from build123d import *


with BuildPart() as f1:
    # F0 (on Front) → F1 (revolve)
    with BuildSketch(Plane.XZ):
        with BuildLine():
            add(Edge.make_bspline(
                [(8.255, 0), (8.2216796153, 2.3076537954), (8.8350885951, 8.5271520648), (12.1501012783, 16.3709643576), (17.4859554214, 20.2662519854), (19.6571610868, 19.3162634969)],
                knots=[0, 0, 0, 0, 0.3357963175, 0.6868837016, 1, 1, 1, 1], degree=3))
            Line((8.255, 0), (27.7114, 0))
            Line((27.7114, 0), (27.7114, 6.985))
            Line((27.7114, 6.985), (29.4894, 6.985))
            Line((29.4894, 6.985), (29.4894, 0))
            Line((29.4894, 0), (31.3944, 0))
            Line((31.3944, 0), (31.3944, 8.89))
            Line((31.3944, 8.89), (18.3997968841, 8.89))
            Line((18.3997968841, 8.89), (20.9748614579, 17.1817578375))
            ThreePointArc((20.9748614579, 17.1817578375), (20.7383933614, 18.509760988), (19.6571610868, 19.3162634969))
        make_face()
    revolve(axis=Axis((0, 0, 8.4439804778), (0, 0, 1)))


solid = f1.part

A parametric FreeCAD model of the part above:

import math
import FreeCAD as App
import Part
import Sketcher
Q = App.Units.Quantity

doc = App.newDocument("Part")
body = doc.addObject("PartDesign::Body", "Body")

sketch1 = doc.addObject("Sketcher::SketchObject", "Sketch")
body.addObject(sketch1)
sketch1.AttachmentSupport = (doc.XZ_Plane, [""])
sketch1.MapMode = "FlatFace"
sketch1.addGeometry(Part.BSplineCurve([App.Vector(8.255, 0, 0), App.Vector(8.22168, 2.307654, 0), App.Vector(8.835089, 8.527152, 0), App.Vector(12.150101, 16.370964, 0), App.Vector(17.485955, 20.266252, 0), App.Vector(19.657161, 19.316263, 0)], [4, 1, 1, 4], [0, 0.335796317, 0.686883702, 1], False, 3, [1, 1, 1, 1, 1, 1], False), False)
sketch1.addGeometry(Part.LineSegment(App.Vector(8.255, 0, 0), App.Vector(27.7114, 0, 0)), False)
sketch1.addGeometry(Part.LineSegment(App.Vector(27.7114, 0, 0), App.Vector(27.7114, 6.985, 0)), False)
sketch1.addGeometry(Part.LineSegment(App.Vector(27.7114, 6.985, 0), App.Vector(29.4894, 6.985, 0)), False)
sketch1.addGeometry(Part.LineSegment(App.Vector(29.4894, 6.985, 0), App.Vector(29.4894, 0, 0)), False)
sketch1.addGeometry(Part.LineSegment(App.Vector(29.4894, 0, 0), App.Vector(31.3944, 0, 0)), False)
sketch1.addGeometry(Part.LineSegment(App.Vector(31.3944, 0, 0), App.Vector(31.3944, 8.89, 0)), False)
sketch1.addGeometry(Part.LineSegment(App.Vector(31.3944, 8.89, 0), App.Vector(18.399797, 8.89, 0)), False)
sketch1.addGeometry(Part.LineSegment(App.Vector(18.399797, 8.89, 0), App.Vector(20.974861, 17.181758, 0)), False)
sketch1.addGeometry(Part.ArcOfCircle(Part.Circle(App.Vector(19.178863, 17.547012, 0), App.Vector(0, 0, 1), 1.832763), math.radians(-11.495528), math.radians(74.872317)), False)
sketch1.addConstraint(Sketcher.Constraint("Block", 0))
sketch1.addConstraint(Sketcher.Constraint("Coincident", 0, 1, 1, 1))
sketch1.addConstraint(Sketcher.Constraint("Coincident", 1, 2, 2, 1))
sketch1.addConstraint(Sketcher.Constraint("Coincident", 2, 2, 3, 1))
sketch1.addConstraint(Sketcher.Constraint("Coincident", 3, 2, 4, 1))
sketch1.addConstraint(Sketcher.Constraint("Coincident", 4, 2, 5, 1))
sketch1.addConstraint(Sketcher.Constraint("Coincident", 5, 2, 6, 1))
sketch1.addConstraint(Sketcher.Constraint("Coincident", 6, 2, 7, 1))
sketch1.addConstraint(Sketcher.Constraint("Coincident", 7, 2, 8, 1))
sketch1.addConstraint(Sketcher.Constraint("Coincident", 8, 2, 9, 1))
sketch1.addConstraint(Sketcher.Constraint("Coincident", 9, 2, 0, 2))
sketch1.addConstraint(Sketcher.Constraint("Horizontal", 1))
sketch1.addConstraint(Sketcher.Constraint("Vertical", 2))
sketch1.addConstraint(Sketcher.Constraint("Horizontal", 3))
sketch1.addConstraint(Sketcher.Constraint("Vertical", 4))
sketch1.addConstraint(Sketcher.Constraint("Horizontal", 5))
sketch1.addConstraint(Sketcher.Constraint("Vertical", 6))
sketch1.addConstraint(Sketcher.Constraint("Horizontal", 7))
sketch1.addConstraint(Sketcher.Constraint("PointOnObject", 4, 2, -1))
sketch1.addConstraint(Sketcher.Constraint("DistanceX", 3, 1, 3, 2, Q("0.07 in")))
sketch1.addConstraint(Sketcher.Constraint("DistanceY", 6, 1, 6, 2, Q("0.35 in")))
sketch1.addConstraint(Sketcher.Constraint("DistanceX", 1, 1, 1, 2, Q("0.766 in")))
sketch1.addConstraint(Sketcher.Constraint("DistanceX", 5, 1, 5, 2, Q("0.075 in")))
sketch1.addConstraint(Sketcher.Constraint("DistanceY", 2, 1, 2, 2, Q("0.275 in")))
sketch1.addConstraint(Sketcher.Constraint("Radius", 9, 1.832763))
sketch1.addConstraint(Sketcher.Constraint("DistanceX", 9, 3, 8, 2, 1.795998))
sketch1.addConstraint(Sketcher.Constraint("DistanceX", 9, 2, 8, 2, 1.3177))
sketch1.addConstraint(Sketcher.Constraint("DistanceX", 7, 2, 7, 1, 12.994603))
revolution = doc.addObject("PartDesign::Revolution", "Revolution")
body.addObject(revolution)
revolution.Profile = sketch1
revolution.ReferenceAxis = (sketch1, ["V_Axis"])
revolution.Angle = 360

doc.recompute()
